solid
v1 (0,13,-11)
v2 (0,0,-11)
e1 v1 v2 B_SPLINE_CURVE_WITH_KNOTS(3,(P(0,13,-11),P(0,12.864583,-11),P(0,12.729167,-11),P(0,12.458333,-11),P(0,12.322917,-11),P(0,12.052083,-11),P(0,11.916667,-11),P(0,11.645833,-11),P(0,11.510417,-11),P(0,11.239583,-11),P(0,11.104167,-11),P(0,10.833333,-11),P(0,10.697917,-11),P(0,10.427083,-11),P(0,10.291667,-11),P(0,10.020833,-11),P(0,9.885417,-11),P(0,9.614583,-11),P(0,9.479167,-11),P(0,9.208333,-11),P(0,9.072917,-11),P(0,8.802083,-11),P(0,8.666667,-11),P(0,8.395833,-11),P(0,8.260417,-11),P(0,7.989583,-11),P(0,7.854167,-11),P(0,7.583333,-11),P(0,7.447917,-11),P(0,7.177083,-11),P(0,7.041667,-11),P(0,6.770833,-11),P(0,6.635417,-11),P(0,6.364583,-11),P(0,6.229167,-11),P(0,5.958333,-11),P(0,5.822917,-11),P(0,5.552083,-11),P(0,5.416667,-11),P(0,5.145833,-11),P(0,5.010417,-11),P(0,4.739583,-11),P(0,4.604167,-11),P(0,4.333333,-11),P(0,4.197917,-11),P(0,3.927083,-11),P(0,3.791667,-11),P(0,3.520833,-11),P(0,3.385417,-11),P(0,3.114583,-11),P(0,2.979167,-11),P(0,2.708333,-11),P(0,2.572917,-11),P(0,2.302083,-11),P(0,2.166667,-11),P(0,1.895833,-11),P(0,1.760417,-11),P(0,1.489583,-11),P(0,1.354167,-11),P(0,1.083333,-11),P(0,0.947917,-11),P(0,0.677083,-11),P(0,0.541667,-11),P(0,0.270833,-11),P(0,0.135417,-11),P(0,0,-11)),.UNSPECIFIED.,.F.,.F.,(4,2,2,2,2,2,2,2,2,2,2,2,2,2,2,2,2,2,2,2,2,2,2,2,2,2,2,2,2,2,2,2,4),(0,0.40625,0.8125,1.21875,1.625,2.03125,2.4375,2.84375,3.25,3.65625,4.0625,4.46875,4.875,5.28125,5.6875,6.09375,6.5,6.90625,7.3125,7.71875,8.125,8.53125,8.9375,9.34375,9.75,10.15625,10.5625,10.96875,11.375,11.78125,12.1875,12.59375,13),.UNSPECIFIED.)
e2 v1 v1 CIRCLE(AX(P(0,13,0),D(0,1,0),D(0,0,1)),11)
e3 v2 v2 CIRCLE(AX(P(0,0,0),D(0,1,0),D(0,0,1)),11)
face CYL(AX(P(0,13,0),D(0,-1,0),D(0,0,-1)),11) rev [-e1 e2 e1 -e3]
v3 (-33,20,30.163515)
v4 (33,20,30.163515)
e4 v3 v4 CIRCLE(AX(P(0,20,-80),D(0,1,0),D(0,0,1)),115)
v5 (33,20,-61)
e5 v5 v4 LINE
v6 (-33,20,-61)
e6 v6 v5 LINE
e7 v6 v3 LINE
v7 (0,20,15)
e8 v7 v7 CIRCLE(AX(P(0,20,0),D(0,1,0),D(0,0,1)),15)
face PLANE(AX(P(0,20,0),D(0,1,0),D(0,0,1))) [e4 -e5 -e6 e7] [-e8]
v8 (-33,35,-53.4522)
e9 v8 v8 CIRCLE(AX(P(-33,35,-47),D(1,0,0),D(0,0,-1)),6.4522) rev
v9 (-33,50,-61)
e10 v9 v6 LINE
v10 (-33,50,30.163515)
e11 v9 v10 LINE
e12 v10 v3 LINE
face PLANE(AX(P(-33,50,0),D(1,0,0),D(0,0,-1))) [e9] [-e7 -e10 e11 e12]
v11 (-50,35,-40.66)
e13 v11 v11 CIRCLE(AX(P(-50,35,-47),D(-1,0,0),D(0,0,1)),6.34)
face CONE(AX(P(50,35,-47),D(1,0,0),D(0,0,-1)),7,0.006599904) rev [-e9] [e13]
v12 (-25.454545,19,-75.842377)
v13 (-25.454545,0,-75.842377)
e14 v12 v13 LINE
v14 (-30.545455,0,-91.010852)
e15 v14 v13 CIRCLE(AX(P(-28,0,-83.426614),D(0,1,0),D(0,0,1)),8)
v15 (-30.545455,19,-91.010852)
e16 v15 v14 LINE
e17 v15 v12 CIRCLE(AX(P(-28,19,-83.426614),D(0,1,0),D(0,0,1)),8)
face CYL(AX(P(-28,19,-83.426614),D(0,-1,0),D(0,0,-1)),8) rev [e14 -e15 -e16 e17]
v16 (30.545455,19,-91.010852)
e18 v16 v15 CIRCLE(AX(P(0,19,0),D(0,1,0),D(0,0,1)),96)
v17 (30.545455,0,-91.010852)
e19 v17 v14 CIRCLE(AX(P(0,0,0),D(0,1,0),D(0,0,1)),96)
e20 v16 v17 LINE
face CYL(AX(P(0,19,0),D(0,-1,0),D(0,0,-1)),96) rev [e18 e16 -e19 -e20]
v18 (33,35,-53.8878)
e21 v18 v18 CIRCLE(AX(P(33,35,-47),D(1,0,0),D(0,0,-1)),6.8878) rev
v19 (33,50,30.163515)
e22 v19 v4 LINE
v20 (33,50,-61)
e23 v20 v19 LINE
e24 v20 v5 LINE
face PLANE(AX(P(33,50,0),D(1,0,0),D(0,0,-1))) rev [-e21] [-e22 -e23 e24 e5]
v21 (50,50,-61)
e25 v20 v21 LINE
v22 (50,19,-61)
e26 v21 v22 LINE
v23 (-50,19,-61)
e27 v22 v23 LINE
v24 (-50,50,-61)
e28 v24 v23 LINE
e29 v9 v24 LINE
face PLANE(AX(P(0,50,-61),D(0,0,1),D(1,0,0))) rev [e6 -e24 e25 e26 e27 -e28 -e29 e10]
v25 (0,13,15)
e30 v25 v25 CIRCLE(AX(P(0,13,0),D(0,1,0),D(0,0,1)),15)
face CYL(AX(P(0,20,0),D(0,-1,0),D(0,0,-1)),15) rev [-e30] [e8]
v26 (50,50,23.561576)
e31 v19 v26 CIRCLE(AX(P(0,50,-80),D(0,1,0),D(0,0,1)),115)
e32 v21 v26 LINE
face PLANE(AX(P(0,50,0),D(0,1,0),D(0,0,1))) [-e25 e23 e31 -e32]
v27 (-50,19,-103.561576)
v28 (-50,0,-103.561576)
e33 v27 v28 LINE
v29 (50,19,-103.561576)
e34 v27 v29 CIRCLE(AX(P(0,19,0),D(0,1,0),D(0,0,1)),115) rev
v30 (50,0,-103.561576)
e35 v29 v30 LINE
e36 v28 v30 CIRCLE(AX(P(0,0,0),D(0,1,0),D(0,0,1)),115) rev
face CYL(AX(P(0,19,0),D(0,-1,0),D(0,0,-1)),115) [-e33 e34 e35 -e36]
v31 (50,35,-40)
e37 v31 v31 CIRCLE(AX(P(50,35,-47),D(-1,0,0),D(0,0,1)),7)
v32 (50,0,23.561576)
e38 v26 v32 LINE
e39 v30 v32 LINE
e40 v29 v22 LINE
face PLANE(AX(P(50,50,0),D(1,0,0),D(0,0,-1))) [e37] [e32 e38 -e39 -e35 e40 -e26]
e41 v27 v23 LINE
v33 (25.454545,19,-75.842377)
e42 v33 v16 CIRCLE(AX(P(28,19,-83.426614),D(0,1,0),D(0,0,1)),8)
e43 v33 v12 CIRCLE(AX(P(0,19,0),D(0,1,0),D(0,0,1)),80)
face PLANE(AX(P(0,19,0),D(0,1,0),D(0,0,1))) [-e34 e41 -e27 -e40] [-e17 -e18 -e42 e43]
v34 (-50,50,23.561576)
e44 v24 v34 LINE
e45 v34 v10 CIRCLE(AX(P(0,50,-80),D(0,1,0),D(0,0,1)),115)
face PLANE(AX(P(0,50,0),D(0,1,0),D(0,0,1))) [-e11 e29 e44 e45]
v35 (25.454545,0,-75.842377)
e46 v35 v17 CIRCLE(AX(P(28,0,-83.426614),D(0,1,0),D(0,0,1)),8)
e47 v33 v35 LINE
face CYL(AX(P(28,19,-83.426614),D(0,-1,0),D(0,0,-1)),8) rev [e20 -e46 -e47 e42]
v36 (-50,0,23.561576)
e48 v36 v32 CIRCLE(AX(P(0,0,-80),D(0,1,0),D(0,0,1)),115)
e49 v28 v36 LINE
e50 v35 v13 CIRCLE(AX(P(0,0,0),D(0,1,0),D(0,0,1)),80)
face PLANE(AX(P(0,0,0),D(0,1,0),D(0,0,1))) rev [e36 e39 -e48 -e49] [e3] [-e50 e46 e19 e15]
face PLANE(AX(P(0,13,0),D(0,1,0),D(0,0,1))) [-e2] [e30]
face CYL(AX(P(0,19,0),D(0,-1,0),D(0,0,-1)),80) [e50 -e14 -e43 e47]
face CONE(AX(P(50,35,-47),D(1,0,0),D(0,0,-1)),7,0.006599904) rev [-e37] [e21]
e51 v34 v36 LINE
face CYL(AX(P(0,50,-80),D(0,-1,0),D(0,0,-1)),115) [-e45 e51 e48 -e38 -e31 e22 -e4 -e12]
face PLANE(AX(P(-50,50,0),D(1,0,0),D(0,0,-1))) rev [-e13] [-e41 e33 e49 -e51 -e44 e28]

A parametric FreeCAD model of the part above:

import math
import FreeCAD as App
import Part
import Sketcher

V = App.Vector
Q = App.Units.Quantity

doc = App.newDocument("Part")
body = doc.addObject("PartDesign::Body", "Body")

sketch1 = body.newObject("Sketcher::SketchObject", "Sketch")
sketch1.AttachmentSupport = (doc.getObject("XZ_Plane"), [""])
sketch1.MapMode = "FlatFace"
sketch1.addGeometry(Part.LineSegment(V(-33, -61, 0), V(-50, -61, 0)), False)
sketch1.addGeometry(Part.LineSegment(V(-50, -61, 0), V(-50, 23.561576, 0)), False)
sketch1.addGeometry(Part.ArcOfCircle(Part.Circle(V(0, -80, 0), V(0, 0, 1), 115), math.radians(106.675835), math.radians(115.771462)), False)
sketch1.addGeometry(Part.LineSegment(V(-33, 30.163515, 0), V(-33, -61, 0)), False)
sketch1.addConstraint(Sketcher.Constraint("Coincident", 0, 2, 1, 1))
sketch1.addConstraint(Sketcher.Constraint("Coincident", 1, 2, 2, 2))
sketch1.addConstraint(Sketcher.Constraint("Coincident", 2, 1, 3, 1))
sketch1.addConstraint(Sketcher.Constraint("Coincident", 3, 2, 0, 1))
sketch1.addConstraint(Sketcher.Constraint("Horizontal", 0))
sketch1.addConstraint(Sketcher.Constraint("Vertical", 1))
sketch1.addConstraint(Sketcher.Constraint("Vertical", 3))
sketch1.addConstraint(Sketcher.Constraint("PointOnObject", 2, 3, -2))
sketch1.addConstraint(Sketcher.Constraint("Radius", 2, Q("115 mm")))
sketch1.addConstraint(Sketcher.Constraint("DistanceX", 0, 2, 0, 1, Q("17 mm")))
sketch1.addConstraint(Sketcher.Constraint("DistanceY", 2, 3, -1, 1, Q("80 mm")))
sketch1.addConstraint(Sketcher.Constraint("DistanceX", 0, 2, -1, 1, Q("50 mm")))
sketch1.addConstraint(Sketcher.Constraint("DistanceY", 0, 2, -1, 1, Q("61 mm")))
pad1 = body.newObject("PartDesign::Pad", "Pad")
pad1.Profile = sketch1
pad1.Length = 50
pad1.Reversed = True
body2 = doc.addObject("PartDesign::Body", "Body001")

sketch2 = body2.newObject("Sketcher::SketchObject", "Sketch001")
sketch2.AttachmentSupport = (doc.getObject("XZ_Plane001"), [""])
sketch2.MapMode = "FlatFace"
sketch2.addGeometry(Part.LineSegment(V(50, 23.561576, 0), V(50, -61, 0)), False)
sketch2.addGeometry(Part.LineSegment(V(50, -61, 0), V(33, -61, 0)), False)
sketch2.addGeometry(Part.LineSegment(V(33, -61, 0), V(33, 30.163515, 0)), False)
sketch2.addGeometry(Part.ArcOfCircle(Part.Circle(V(0, -80, 0), V(0, 0, 1), 115), math.radians(64.228538), math.radians(73.324165)), False)
sketch2.addConstraint(Sketcher.Constraint("Coincident", 0, 2, 1, 1))
sketch2.addConstraint(Sketcher.Constraint("Coincident", 1, 2, 2, 1))
sketch2.addConstraint(Sketcher.Constraint("Coincident", 2, 2, 3, 2))
sketch2.addConstraint(Sketcher.Constraint("Coincident", 3, 1, 0, 1))
sketch2.addConstraint(Sketcher.Constraint("Vertical", 0))
sketch2.addConstraint(Sketcher.Constraint("Horizontal", 1))
sketch2.addConstraint(Sketcher.Constraint("Vertical", 2))
sketch2.addConstraint(Sketcher.Constraint("PointOnObject", 3, 3, -2))
sketch2.addConstraint(Sketcher.Constraint("Radius", 3, Q("115 mm")))
sketch2.addConstraint(Sketcher.Constraint("DistanceX", 1, 2, 1, 1, Q("17 mm")))
sketch2.addConstraint(Sketcher.Constraint("DistanceY", 3, 3, -1, 1, Q("80 mm")))
sketch2.addConstraint(Sketcher.Constraint("DistanceX", -1, 1, 0, 2, Q("50 mm")))
sketch2.addConstraint(Sketcher.Constraint("DistanceY", 0, 2, -1, 1, Q("61 mm")))
pad2 = body2.newObject("PartDesign::Pad", "Pad001")
pad2.Profile = sketch2
pad2.Length = 50
pad2.Reversed = True
body.AllowCompound = True
doc.recompute()

boolean = body.newObject("PartDesign::Boolean", "Boolean")
boolean.Type = "Fuse"
boolean.addObjects([body2])

sketch3 = body.newObject("Sketcher::SketchObject", "Sketch002")
sketch3.AttachmentSupport = (doc.getObject("XZ_Plane"), [""])
sketch3.MapMode = "FlatFace"
sketch3.addGeometry(Part.LineSegment(V(33, -61, 0), V(-33, -61, 0)), False)
sketch3.addGeometry(Part.LineSegment(V(-33, -61, 0), V(-33, 30.163515, 0)), False)
sketch3.addGeometry(Part.ArcOfCircle(Part.Circle(V(0, -80, 0), V(0, 0, 1), 115), math.radians(73.324165), math.radians(106.675835)), False)
sketch3.addGeometry(Part.LineSegment(V(33, 30.163515, 0), V(33, -61, 0)), False)
sketch3.addGeometry(Part.Circle(V(0, 0, 0), V(0, 0, 1), 15), False)
sketch3.addConstraint(Sketcher.Constraint("Coincident", 0, 2, 1, 1))
sketch3.addConstraint(Sketcher.Constraint("Coincident", 1, 2, 2, 2))
sketch3.addConstraint(Sketcher.Constraint("Coincident", 2, 1, 3, 1))
sketch3.addConstraint(Sketcher.Constraint("Coincident", 3, 2, 0, 1))
sketch3.addConstraint(Sketcher.Constraint("Horizontal", 0))
sketch3.addConstraint(Sketcher.Constraint("Vertical", 1))
sketch3.addConstraint(Sketcher.Constraint("Vertical", 3))
sketch3.addConstraint(Sketcher.Constraint("Coincident", 4, 3, -1, 1))
sketch3.addConstraint(Sketcher.Constraint("Symmetric", 1, 2, 2, 1, -2))
sketch3.addConstraint(Sketcher.Constraint("Diameter", 4, Q("30 mm")))
sketch3.addConstraint(Sketcher.Constraint("Radius", 2, Q("115 mm")))
sketch3.addConstraint(Sketcher.Constraint("DistanceX", 0, 2, 0, 1, Q("66 mm")))
sketch3.addConstraint(Sketcher.Constraint("DistanceY", 2, 3, -1, 1, Q("80 mm")))
sketch3.addConstraint(Sketcher.Constraint("DistanceY", 0, 2, -1, 1, Q("61 mm")))
pad3 = body.newObject("PartDesign::Pad", "Pad002")
pad3.Profile = sketch3
pad3.Length = 20
pad3.Reversed = True

sketch4 = body.newObject("Sketcher::SketchObject", "Sketch003")
sketch4.AttachmentSupport = (doc.getObject("XZ_Plane"), [""])
sketch4.MapMode = "FlatFace"
sketch4.addGeometry(Part.ArcOfCircle(Part.Circle(V(0, 0, 0), V(0, 0, 1), 115), math.radians(-115.771462), math.radians(-64.228538)), False)
sketch4.addGeometry(Part.LineSegment(V(-50, -103.561576, 0), V(-50, -61, 0)), False)
sketch4.addGeometry(Part.LineSegment(V(-50, -61, 0), V(50, -61, 0)), False)
sketch4.addGeometry(Part.LineSegment(V(50, -61, 0), V(50, -103.561576, 0)), False)
sketch4.addGeometry(Part.ArcOfCircle(Part.Circle(V(-28, -83.426614, 0), V(0, 0, 1), 8), math.radians(71.446995), math.radians(251.446995)), False)
sketch4.addGeometry(Part.ArcOfCircle(Part.Circle(V(0, 0, 0), V(0, 0, 1), 96), math.radians(-108.553005), math.radians(-71.446995)), False)
sketch4.addGeometry(Part.ArcOfCircle(Part.Circle(V(28, -83.426614, 0), V(0, 0, 1), 8), math.radians(-71.446995), math.radians(108.553005)), False)
sketch4.addGeometry(Part.ArcOfCircle(Part.Circle(V(0, 0, 0), V(0, 0, 1), 80), math.radians(-108.553005), math.radians(-71.446995)), False)
sketch4.addConstraint(Sketcher.Constraint("Coincident", 0, 1, 1, 1))
sketch4.addConstraint(Sketcher.Constraint("Coincident", 1, 2, 2, 1))
sketch4.addConstraint(Sketcher.Constraint("Coincident", 2, 2, 3, 1))
sketch4.addConstraint(Sketcher.Constraint("Coincident", 3, 2, 0, 2))
sketch4.addConstraint(Sketcher.Constraint("Tangent", 4, 2, 5, 1))
sketch4.addConstraint(Sketcher.Constraint("Tangent", 5, 2, 6, 1))
sketch4.addConstraint(Sketcher.Constraint("Tangent", 6, 2, 7, 2))
sketch4.addConstraint(Sketcher.Constraint("Tangent", 7, 1, 4, 1))
sketch4.addConstraint(Sketcher.Constraint("Vertical", 1))
sketch4.addConstraint(Sketcher.Constraint("Horizontal", 2))
sketch4.addConstraint(Sketcher.Constraint("Vertical", 3))
sketch4.addConstraint(Sketcher.Constraint("Coincident", 0, 3, -1, 1))
sketch4.addConstraint(Sketcher.Constraint("Coincident", 5, 3, -1, 1))
sketch4.addConstraint(Sketcher.Constraint("Coincident", 7, 3, -1, 1))
sketch4.addConstraint(Sketcher.Constraint("Horizontal", 4, 3, 6, 3))
sketch4.addConstraint(Sketcher.Constraint("Horizontal", 0, 1, 3, 2))
sketch4.addConstraint(Sketcher.Constraint("Radius", 0, Q("115 mm")))
sketch4.addConstraint(Sketcher.Constraint("Radius", 4, Q("8 mm")))
sketch4.addConstraint(Sketcher.Constraint("Radius", 5, Q("96 mm")))
sketch4.addConstraint(Sketcher.Constraint("DistanceX", 2, 1, 2, 2, Q("100 mm")))
sketch4.addConstraint(Sketcher.Constraint("DistanceX", 4, 3, -1, 1, Q("28 mm")))
sketch4.addConstraint(Sketcher.Constraint("DistanceY", 1, 2, -1, 1, Q("61 mm")))
pad4 = body.newObject("PartDesign::Pad", "Pad003")
pad4.Profile = sketch4
pad4.Length = 19
pad4.Reversed = True

sketch5 = body.newObject("Sketcher::SketchObject", "Sketch004")
sketch5.AttachmentSupport = (doc.getObject("XZ_Plane"), [""])
sketch5.MapMode = "FlatFace"
sketch5.addGeometry(Part.Circle(V(0, 0, 0), V(0, 0, 1), 15), False)
sketch5.addGeometry(Part.Circle(V(0, 0, 0), V(0, 0, 1), 11), False)
sketch5.addConstraint(Sketcher.Constraint("Coincident", 0, 3, -1, 1))
sketch5.addConstraint(Sketcher.Constraint("Coincident", 1, 3, -1, 1))
sketch5.addConstraint(Sketcher.Constraint("Diameter", 0, Q("30 mm")))
sketch5.addConstraint(Sketcher.Constraint("Diameter", 1, Q("22 mm")))
pad5 = body.newObject("PartDesign::Pad", "Pad004")
pad5.Profile = sketch5
pad5.Length = 13
pad5.Reversed = True

sketch6 = body.newObject("Sketcher::SketchObject", "Sketch005")
sketch6.AttachmentSupport = (doc.getObject("XZ_Plane"), [""])
sketch6.MapMode = "FlatFace"
sketch6.AttachmentOffset = App.Placement(V(0, 0, -35), App.Rotation())
sketch6.addGeometry(Part.LineSegment(V(50, -54, 0), V(-50, -53.34, 0)), False)
sketch6.addGeometry(Part.LineSegment(V(-50, -53.34, 0), V(-50, -47, 0)), False)
sketch6.addGeometry(Part.LineSegment(V(-50, -47, 0), V(50, -47, 0)), False)
sketch6.addGeometry(Part.LineSegment(V(50, -47, 0), V(50, -54, 0)), False)
sketch6.addGeometry(Part.LineSegment(V(-50, -47, 0), V(50, -47, 0)), True)
sketch6.addConstraint(Sketcher.Constraint("Coincident", 0, 2, 1, 1))
sketch6.addConstraint(Sketcher.Constraint("Coincident", 1, 2, 2, 1))
sketch6.addConstraint(Sketcher.Constraint("Coincident", 2, 2, 3, 1))
sketch6.addConstraint(Sketcher.Constraint("Coincident", 3, 2, 0, 1))
sketch6.addConstraint(Sketcher.Constraint("Vertical", 1))
sketch6.addConstraint(Sketcher.Constraint("Horizontal", 2))
sketch6.addConstraint(Sketcher.Constraint("Vertical", 3))
sketch6.addConstraint(Sketcher.Constraint("Horizontal", 4))
sketch6.addConstraint(Sketcher.Constraint("Coincident", 4, 1, 1, 2))
sketch6.addConstraint(Sketcher.Constraint("Vertical", 3, 2, 4, 2))
sketch6.addConstraint(Sketcher.Constraint("DistanceX", 2, 1, 2, 2, Q("100 mm")))
sketch6.addConstraint(Sketcher.Constraint("DistanceY", 3, 2, 3, 1, Q("7 mm")))
sketch6.addConstraint(Sketcher.Constraint("DistanceX", 0, 2, -1, 1, Q("50 mm")))
sketch6.addConstraint(Sketcher.Constraint("DistanceY", 1, 2, -1, 1, Q("47 mm")))
sketch6.addConstraint(Sketcher.Constraint("DistanceY", 1, 1, 1, 2, Q("6.34 mm")))
groove = body.newObject("PartDesign::Groove", "Groove")
groove.Profile = sketch6
groove.ReferenceAxis = (sketch6, ["Axis0"])
groove.Angle = 360

doc.recompute()
